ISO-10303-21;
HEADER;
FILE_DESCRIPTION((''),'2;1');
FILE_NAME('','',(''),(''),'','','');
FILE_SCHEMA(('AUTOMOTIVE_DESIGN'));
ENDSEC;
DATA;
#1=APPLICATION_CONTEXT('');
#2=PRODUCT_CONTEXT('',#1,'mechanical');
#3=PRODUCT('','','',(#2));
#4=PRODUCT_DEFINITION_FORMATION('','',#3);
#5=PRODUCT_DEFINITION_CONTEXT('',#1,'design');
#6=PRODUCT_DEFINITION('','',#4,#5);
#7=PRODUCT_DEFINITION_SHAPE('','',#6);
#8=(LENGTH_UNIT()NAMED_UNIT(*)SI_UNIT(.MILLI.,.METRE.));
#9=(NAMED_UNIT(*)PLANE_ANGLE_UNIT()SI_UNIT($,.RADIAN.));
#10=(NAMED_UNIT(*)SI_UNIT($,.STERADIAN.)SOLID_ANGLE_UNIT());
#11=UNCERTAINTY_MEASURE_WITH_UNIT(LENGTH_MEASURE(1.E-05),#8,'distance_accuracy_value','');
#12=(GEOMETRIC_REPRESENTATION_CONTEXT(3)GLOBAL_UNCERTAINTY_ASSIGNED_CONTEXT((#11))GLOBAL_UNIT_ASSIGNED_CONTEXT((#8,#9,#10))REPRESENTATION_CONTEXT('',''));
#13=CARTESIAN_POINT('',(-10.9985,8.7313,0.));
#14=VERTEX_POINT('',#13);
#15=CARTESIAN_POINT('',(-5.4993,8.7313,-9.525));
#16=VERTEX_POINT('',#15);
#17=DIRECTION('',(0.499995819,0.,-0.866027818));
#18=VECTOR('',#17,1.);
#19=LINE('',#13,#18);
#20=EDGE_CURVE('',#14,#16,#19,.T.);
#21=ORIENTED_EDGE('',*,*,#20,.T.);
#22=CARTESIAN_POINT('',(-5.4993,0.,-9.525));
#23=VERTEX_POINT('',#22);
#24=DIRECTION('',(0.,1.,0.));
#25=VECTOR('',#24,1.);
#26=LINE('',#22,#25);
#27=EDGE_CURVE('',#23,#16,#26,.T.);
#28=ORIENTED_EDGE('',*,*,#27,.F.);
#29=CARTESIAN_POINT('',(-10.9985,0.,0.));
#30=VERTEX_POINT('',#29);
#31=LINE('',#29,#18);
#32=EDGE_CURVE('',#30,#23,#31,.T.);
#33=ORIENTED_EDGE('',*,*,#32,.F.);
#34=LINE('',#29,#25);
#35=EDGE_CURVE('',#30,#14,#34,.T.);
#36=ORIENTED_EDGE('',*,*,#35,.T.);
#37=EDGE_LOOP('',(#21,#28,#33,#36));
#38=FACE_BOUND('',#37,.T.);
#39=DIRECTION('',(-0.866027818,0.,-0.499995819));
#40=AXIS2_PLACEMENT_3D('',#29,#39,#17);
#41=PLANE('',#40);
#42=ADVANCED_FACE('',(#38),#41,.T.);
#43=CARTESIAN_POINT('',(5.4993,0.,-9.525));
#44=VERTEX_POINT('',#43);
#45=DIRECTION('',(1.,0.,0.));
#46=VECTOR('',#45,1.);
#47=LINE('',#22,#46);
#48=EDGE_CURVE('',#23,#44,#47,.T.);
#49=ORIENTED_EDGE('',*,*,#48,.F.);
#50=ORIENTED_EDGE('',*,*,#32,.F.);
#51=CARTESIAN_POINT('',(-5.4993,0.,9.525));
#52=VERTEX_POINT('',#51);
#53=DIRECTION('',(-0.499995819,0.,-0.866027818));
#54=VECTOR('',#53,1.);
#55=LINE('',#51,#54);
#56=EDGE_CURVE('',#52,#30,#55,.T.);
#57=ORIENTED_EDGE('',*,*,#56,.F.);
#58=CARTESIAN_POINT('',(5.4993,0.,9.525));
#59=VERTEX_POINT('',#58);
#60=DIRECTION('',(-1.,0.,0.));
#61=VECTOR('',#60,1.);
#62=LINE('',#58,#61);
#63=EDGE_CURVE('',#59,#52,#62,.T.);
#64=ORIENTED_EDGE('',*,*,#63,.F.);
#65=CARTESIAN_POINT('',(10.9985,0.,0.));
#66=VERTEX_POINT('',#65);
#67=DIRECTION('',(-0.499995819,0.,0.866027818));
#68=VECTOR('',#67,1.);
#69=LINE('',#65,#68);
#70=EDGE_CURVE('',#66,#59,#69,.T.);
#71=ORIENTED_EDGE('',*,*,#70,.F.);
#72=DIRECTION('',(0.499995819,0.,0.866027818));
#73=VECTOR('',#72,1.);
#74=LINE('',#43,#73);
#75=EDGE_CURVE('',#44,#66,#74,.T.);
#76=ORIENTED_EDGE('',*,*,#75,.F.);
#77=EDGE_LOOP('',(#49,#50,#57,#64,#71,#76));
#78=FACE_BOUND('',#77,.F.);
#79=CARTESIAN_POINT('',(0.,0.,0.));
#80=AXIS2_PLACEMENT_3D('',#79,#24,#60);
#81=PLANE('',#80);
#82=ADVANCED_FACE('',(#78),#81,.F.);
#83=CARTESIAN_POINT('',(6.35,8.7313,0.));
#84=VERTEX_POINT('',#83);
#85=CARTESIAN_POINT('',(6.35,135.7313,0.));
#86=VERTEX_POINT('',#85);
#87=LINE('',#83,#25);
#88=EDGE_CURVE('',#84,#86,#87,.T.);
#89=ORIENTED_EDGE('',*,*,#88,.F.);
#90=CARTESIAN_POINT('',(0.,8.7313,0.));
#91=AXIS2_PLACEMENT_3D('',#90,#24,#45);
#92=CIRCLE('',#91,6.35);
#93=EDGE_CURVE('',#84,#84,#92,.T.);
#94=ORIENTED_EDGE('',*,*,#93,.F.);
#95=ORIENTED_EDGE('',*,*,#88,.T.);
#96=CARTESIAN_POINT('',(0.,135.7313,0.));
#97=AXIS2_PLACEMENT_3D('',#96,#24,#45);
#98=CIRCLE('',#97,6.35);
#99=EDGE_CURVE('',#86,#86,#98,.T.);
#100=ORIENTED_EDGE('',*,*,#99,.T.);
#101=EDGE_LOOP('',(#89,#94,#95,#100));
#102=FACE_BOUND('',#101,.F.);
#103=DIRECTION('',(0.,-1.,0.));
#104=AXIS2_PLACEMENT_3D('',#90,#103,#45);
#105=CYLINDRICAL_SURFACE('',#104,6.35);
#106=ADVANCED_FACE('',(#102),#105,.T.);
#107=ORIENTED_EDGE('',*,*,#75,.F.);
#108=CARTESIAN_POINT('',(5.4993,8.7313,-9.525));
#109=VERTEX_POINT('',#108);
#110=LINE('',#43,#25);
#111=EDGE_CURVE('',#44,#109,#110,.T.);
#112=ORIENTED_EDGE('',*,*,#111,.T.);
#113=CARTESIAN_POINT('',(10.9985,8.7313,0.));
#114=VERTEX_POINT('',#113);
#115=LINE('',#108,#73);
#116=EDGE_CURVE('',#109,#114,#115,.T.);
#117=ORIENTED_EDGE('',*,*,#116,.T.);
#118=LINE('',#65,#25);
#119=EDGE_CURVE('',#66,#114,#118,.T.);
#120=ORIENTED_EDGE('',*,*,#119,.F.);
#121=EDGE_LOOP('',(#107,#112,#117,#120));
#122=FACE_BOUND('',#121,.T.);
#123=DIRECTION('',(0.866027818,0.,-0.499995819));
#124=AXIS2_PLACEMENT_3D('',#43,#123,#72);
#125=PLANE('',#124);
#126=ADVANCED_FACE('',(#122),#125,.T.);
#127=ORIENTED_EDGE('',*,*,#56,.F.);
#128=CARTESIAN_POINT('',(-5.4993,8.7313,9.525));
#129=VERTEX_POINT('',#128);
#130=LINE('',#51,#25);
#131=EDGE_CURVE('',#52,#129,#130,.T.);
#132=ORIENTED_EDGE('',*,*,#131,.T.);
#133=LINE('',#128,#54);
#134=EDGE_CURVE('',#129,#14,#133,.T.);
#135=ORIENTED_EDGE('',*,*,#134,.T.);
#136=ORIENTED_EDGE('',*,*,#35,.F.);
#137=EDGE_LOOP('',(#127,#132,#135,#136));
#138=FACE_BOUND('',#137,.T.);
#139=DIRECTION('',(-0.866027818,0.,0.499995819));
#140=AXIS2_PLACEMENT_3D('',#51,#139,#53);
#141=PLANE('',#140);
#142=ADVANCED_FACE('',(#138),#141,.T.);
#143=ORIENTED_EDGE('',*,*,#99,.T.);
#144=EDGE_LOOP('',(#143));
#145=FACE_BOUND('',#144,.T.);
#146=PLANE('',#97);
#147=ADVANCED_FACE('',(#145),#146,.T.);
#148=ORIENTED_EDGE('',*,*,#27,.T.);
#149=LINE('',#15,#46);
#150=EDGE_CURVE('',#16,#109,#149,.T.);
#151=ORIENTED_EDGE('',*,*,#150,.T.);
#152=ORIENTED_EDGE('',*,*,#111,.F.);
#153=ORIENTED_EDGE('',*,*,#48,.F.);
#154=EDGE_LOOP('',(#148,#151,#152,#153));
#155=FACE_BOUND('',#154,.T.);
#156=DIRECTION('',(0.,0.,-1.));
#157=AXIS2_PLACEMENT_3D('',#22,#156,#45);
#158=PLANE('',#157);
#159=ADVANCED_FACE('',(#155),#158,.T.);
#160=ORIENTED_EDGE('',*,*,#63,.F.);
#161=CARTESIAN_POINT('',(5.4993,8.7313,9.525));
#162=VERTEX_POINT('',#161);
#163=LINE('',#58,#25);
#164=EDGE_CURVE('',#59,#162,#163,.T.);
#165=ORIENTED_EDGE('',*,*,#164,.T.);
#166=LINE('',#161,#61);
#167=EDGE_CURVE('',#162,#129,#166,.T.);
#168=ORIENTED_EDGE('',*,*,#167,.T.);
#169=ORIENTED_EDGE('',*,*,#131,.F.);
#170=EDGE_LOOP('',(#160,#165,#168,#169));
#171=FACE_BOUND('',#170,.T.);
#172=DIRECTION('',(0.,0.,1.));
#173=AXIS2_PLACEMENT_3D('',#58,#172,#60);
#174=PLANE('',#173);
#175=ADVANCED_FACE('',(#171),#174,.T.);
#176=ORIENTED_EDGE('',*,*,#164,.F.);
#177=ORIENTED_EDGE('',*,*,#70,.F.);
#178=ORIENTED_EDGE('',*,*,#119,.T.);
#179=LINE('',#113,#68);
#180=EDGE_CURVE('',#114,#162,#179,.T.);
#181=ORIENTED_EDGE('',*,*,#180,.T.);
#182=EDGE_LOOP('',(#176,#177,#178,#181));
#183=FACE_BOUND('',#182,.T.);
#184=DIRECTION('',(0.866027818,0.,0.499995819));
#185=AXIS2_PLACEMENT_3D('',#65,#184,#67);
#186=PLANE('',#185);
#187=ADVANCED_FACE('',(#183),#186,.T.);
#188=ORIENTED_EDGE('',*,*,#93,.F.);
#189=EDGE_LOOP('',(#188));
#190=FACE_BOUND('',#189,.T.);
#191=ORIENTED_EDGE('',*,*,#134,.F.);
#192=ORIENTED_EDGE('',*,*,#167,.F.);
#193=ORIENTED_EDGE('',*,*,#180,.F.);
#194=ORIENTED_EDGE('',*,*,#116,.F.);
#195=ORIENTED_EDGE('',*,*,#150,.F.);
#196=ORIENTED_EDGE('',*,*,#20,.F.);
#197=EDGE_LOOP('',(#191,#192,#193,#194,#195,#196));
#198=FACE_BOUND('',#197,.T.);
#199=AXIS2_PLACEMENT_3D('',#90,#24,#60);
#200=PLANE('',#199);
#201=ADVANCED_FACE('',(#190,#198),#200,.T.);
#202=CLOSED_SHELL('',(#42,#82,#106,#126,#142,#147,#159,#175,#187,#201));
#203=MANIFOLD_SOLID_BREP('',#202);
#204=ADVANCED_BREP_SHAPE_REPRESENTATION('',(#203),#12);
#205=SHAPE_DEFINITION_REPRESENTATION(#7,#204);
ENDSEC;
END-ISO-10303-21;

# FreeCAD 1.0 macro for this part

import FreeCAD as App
import Part
import Sketcher

V = App.Vector
Q = App.Units.Quantity


def add_polygon(sketch, points):
    """Adds a closed chain of lines whose ends are joined by coincident constraints."""
    first, n = sketch.GeometryCount, len(points)
    for a, b in zip(points, points[1:] + points[:1]):
        sketch.addGeometry(Part.LineSegment(App.Vector(*a, 0), App.Vector(*b, 0)), False)
    for i in range(n):
        sketch.addConstraint(Sketcher.Constraint("Coincident", first + i, 2, first + (i + 1) % n, 1))

doc = App.newDocument("Part")
body = doc.addObject("PartDesign::Body", "Body")

sketch1 = doc.addObject("Sketcher::SketchObject", "Sketch")
body.addObject(sketch1)
sketch1.AttachmentSupport = (doc.XZ_Plane, [""])
sketch1.MapMode = "FlatFace"
add_polygon(sketch1, [(11, 0), (5, -10), (-5, -10), (-11, 0), (-5, 10), (5, 10)])
sketch1.addConstraint(Sketcher.Constraint("Horizontal", 1))
sketch1.addConstraint(Sketcher.Constraint("Horizontal", 4))
sketch1.addConstraint(Sketcher.Constraint("Symmetric", 0, 2, 3, 2, -1, 1))
sketch1.addConstraint(Sketcher.Constraint("Symmetric", 2, 2, 5, 2, -1, 1))
sketch1.addConstraint(Sketcher.Constraint("PointOnObject", 2, 2, -1))
sketch1.addConstraint(Sketcher.Constraint("Parallel", 2, 5))
sketch1.addConstraint(Sketcher.Constraint("Vertical", 1, 2, 3, 2))
sketch1.addConstraint(Sketcher.Constraint("DistanceY", 1, 2, 3, 2, Q("0.75 in")))
sketch1.addConstraint(Sketcher.Constraint("Angle", 0, Q("-119.9997 deg")))
sketch1.addConstraint(Sketcher.Constraint("DistanceX", 2, 2, -1, 1, Q("0.433 in")))
pad1 = doc.addObject("PartDesign::Pad", "Pad")
body.addObject(pad1)
pad1.Profile = sketch1
pad1.Length = Q("0.343752 in")
pad1.Reversed = True

sketch2 = doc.addObject("Sketcher::SketchObject", "Sketch001")
body.addObject(sketch2)
sketch2.AttachmentSupport = (doc.XZ_Plane, [""])
sketch2.MapMode = "FlatFace"
sketch2.AttachmentOffset = App.Placement(V(0, 0, -0.343752 * 25.4), App.Rotation())
sketch2.addGeometry(Part.Circle(V(0, 0, 0), V(0, 0, 1), 6), False)
sketch2.addConstraint(Sketcher.Constraint("Coincident", 0, 3, -1, 1))
sketch2.addConstraint(Sketcher.Constraint("Diameter", 0, Q("0.5 in")))
pad2 = doc.addObject("PartDesign::Pad", "Pad001")
body.addObject(pad2)
pad2.Profile = sketch2
pad2.Length = Q("5 in")
pad2.Reversed = True

doc.recompute()
